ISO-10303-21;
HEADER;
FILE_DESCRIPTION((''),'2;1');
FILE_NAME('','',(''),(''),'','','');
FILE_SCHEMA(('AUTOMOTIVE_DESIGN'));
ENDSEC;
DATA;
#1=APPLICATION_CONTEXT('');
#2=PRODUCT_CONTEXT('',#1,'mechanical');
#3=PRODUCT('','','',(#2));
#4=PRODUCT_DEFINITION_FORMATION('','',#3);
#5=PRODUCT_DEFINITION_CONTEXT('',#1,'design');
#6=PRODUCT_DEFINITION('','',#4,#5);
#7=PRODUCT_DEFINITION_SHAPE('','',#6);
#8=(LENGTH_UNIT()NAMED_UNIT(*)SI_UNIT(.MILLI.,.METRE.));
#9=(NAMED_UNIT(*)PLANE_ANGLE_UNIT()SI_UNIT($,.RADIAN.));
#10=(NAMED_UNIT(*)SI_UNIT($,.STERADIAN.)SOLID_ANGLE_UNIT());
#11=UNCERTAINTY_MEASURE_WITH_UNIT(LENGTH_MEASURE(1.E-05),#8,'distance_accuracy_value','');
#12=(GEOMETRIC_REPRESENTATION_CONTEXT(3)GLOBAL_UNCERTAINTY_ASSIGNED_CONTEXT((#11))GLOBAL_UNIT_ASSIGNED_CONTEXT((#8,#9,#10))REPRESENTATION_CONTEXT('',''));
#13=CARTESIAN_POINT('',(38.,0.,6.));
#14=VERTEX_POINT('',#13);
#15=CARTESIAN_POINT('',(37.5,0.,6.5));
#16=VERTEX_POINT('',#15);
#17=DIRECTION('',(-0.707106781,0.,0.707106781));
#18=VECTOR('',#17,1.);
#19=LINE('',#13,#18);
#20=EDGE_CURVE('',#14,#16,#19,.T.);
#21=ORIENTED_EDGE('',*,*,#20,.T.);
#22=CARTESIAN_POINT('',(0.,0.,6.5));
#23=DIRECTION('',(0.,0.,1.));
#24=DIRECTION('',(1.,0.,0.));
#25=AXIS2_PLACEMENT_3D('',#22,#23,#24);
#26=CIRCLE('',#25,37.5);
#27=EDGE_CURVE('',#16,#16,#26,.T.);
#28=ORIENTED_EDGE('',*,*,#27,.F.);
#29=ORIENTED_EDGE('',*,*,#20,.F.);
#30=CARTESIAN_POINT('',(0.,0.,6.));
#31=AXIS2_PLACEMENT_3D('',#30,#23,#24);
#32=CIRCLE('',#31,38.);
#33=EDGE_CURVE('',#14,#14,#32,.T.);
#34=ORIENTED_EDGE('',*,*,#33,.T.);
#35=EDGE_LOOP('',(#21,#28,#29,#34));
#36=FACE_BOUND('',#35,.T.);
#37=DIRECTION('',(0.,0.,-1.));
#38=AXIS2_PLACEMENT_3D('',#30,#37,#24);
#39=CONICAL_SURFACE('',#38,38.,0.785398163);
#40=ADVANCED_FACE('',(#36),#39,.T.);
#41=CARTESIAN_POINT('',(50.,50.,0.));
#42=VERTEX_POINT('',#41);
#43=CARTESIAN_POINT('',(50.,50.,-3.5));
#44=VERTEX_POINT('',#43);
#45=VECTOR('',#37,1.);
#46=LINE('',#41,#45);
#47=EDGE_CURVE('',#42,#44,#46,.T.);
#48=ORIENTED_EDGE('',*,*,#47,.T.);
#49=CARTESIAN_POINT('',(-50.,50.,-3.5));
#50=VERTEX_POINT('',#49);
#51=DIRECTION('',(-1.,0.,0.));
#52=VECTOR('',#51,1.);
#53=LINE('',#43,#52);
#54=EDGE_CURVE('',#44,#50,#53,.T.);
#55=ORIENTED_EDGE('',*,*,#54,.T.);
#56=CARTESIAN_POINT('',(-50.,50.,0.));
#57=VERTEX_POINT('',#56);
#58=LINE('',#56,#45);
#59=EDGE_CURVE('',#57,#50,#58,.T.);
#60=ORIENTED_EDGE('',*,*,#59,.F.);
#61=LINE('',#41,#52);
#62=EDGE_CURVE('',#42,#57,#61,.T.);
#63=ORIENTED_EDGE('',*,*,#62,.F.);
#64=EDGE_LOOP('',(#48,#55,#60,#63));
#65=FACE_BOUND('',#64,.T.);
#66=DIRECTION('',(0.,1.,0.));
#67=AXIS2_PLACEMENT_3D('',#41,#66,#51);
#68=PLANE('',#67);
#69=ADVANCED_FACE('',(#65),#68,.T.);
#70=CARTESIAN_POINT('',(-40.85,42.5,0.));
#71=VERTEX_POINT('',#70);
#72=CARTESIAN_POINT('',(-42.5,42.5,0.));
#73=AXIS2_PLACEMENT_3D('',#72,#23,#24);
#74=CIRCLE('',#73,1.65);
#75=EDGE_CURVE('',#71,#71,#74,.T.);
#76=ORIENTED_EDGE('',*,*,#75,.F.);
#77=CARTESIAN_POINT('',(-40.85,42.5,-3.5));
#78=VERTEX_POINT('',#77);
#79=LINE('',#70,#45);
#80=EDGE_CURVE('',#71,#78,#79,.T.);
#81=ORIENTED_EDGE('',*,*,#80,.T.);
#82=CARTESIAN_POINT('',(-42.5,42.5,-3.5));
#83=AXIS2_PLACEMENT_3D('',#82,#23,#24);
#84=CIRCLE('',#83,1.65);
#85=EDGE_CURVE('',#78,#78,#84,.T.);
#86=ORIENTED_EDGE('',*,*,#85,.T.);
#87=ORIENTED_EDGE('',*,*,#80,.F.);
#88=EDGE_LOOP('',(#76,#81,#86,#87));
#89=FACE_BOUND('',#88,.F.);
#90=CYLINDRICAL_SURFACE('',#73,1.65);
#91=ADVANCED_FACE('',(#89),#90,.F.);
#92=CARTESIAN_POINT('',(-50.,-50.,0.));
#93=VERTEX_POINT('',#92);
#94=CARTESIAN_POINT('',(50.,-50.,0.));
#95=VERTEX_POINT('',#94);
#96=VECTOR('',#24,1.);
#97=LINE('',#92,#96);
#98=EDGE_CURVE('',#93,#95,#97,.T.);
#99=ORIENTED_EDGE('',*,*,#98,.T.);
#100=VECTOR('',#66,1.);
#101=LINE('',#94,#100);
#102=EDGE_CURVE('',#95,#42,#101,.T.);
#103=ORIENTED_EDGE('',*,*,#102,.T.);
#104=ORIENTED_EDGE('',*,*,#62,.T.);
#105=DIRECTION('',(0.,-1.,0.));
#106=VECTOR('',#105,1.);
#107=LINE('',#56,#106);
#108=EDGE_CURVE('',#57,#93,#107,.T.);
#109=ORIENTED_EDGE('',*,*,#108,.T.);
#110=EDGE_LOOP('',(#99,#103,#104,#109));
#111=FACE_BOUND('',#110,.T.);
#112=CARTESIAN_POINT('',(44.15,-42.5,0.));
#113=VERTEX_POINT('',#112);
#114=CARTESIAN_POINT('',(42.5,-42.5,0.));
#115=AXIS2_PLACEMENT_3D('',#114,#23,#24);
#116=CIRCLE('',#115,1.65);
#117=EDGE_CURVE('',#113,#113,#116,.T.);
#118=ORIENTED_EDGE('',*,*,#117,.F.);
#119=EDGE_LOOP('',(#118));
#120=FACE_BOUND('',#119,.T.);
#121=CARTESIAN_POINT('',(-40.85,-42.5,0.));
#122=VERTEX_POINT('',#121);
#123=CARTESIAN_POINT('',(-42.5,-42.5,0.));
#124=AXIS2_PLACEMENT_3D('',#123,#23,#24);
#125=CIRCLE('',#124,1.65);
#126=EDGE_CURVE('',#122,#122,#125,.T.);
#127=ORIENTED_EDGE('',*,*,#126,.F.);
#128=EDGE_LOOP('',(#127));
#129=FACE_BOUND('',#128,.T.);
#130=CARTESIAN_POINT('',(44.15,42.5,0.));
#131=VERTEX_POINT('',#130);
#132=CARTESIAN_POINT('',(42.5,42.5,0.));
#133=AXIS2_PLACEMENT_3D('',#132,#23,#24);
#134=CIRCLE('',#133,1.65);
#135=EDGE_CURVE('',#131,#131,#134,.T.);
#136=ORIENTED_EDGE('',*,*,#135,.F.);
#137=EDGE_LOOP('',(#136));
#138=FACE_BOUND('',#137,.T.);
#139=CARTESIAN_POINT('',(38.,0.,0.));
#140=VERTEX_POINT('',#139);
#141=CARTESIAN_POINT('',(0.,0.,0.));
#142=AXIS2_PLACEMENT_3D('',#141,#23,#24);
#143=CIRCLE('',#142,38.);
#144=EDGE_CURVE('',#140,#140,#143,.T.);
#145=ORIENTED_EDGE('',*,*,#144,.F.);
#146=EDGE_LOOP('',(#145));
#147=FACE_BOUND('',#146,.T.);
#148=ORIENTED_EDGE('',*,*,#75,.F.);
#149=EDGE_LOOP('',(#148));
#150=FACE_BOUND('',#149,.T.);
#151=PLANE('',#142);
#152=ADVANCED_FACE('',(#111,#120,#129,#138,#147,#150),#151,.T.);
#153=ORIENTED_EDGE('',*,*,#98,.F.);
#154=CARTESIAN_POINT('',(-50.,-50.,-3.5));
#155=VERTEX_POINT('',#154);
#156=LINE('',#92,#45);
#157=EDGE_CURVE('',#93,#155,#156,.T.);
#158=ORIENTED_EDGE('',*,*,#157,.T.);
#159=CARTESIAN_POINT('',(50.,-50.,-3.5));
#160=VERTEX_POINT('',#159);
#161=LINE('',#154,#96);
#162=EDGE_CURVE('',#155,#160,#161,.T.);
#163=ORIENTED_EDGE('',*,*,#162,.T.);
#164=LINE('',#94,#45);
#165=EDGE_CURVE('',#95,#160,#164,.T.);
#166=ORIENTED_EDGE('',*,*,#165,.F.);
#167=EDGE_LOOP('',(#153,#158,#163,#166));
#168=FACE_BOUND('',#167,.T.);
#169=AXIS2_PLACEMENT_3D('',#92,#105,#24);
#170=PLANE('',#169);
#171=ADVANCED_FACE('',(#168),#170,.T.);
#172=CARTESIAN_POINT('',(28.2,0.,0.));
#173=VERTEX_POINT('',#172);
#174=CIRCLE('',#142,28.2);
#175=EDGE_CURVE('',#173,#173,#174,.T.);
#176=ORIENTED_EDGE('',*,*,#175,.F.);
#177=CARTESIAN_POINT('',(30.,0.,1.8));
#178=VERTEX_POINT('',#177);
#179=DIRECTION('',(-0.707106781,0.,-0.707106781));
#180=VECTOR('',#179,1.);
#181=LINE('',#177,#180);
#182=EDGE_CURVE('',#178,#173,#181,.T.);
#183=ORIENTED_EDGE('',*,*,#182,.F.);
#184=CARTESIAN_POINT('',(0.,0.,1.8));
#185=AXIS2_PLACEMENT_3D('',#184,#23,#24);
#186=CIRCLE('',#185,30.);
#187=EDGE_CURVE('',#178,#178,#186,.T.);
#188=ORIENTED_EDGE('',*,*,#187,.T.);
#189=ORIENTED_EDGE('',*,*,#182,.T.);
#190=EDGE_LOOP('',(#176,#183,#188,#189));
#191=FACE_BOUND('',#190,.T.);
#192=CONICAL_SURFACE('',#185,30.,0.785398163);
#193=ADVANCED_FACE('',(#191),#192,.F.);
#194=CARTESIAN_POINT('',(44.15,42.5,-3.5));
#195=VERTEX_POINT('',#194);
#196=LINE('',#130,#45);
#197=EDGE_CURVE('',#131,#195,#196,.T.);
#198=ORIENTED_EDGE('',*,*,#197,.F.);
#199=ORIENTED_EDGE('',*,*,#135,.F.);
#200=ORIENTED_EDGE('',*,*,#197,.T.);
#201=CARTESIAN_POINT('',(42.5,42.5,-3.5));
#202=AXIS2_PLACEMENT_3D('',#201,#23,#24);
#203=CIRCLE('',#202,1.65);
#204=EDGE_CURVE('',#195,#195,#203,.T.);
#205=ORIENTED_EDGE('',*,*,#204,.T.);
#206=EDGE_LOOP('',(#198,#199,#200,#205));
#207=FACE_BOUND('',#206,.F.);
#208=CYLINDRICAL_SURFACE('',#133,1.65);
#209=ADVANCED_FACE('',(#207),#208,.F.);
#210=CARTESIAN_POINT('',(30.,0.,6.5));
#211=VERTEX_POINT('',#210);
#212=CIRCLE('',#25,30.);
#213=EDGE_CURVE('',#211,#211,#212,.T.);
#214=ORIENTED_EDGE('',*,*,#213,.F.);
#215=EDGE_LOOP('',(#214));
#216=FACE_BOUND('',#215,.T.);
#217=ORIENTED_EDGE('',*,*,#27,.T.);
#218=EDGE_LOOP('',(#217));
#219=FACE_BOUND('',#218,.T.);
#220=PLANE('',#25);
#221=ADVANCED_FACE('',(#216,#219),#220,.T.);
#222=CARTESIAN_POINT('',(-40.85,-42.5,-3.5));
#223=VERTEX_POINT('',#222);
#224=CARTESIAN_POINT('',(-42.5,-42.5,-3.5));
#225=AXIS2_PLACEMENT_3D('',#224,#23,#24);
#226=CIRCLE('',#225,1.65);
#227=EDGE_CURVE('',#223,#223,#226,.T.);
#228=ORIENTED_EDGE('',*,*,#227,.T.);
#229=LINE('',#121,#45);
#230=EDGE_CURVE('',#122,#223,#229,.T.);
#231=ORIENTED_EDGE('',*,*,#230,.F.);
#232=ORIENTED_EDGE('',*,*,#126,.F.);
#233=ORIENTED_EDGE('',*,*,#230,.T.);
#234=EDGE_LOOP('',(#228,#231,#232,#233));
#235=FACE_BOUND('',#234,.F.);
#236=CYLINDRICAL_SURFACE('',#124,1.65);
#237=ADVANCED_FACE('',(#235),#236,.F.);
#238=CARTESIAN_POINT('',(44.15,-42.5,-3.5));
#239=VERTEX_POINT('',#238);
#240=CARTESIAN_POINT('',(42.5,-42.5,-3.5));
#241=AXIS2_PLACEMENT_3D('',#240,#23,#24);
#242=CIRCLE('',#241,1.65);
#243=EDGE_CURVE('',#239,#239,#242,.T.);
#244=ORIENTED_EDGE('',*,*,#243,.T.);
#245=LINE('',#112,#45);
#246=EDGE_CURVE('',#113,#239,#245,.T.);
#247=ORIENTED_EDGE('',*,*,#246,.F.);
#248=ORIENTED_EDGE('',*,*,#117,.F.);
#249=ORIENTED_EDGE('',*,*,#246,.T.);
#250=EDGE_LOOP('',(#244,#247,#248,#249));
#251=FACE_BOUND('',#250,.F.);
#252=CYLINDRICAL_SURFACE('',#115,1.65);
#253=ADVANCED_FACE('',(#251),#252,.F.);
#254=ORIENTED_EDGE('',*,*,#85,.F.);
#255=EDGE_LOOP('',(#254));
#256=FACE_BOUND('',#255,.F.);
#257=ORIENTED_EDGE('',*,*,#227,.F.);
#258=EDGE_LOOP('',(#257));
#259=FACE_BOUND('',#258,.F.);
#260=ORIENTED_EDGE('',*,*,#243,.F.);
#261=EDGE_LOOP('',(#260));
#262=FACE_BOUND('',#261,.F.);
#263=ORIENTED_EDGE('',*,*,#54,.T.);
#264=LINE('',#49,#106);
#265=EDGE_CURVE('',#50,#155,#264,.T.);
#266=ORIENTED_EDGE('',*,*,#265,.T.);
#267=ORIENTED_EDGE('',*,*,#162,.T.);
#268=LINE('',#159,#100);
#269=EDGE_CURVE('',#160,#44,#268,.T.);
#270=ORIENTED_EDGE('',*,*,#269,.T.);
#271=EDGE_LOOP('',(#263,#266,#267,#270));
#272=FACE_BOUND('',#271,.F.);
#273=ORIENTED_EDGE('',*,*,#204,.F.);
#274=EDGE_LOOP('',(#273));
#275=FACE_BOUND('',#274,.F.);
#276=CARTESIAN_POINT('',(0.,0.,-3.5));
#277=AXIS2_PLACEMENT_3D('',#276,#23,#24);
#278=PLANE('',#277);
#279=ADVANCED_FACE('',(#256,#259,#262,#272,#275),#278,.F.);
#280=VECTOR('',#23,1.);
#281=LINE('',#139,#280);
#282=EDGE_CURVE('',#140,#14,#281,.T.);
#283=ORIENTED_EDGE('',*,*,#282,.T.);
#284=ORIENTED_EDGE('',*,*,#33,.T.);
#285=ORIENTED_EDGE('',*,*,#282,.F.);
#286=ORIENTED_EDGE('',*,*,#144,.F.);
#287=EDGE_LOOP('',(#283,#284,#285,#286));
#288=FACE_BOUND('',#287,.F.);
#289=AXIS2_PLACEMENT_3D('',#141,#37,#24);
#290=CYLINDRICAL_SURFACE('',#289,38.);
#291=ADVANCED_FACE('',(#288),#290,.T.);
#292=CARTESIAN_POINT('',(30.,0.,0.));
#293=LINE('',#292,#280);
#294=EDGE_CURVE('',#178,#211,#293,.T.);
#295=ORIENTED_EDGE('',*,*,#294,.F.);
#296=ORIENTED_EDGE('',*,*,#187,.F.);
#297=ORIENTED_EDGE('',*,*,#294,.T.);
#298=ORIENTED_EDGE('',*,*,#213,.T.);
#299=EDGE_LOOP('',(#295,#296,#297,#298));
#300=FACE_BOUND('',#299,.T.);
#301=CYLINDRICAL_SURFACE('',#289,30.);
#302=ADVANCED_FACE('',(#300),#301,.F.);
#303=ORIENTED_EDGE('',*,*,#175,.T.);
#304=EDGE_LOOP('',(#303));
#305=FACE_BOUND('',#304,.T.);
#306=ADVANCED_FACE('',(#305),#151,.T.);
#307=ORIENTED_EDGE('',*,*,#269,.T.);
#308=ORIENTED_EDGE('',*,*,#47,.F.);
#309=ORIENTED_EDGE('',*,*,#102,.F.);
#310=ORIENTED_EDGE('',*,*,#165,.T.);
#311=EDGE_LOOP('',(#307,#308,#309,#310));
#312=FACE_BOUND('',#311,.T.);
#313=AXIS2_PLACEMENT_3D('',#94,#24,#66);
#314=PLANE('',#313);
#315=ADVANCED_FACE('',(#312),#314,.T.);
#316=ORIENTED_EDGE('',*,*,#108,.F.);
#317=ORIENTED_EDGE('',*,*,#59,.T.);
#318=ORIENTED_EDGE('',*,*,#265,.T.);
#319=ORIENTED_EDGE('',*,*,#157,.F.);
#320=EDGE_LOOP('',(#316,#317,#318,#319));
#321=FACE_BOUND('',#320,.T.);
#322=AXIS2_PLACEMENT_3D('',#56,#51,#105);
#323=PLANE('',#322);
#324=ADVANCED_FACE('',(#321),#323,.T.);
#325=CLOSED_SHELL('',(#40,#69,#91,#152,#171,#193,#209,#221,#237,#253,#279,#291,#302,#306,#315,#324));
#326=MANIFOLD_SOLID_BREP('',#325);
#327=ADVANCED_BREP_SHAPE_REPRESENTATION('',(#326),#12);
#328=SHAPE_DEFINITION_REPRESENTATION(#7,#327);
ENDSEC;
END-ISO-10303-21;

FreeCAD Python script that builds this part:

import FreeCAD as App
import Part
import Sketcher
Q = App.Units.Quantity


def edges_at(feature, points):
    """Names of the edges that pass closest to the given points."""
    edges = feature.Shape.Edges
    near = lambda p: min(range(len(edges)), key=lambda i: edges[i].distToShape(Part.Vertex(*p))[0])
    return sorted({f"Edge{near(p) + 1}" for p in points})


def add_polygon(sketch, points):
    """Adds a closed chain of lines whose ends are joined by coincident constraints."""
    first, n = sketch.GeometryCount, len(points)
    for a, b in zip(points, points[1:] + points[:1]):
        sketch.addGeometry(Part.LineSegment(App.Vector(*a, 0), App.Vector(*b, 0)), False)
    for i in range(n):
        sketch.addConstraint(Sketcher.Constraint("Coincident", first + i, 2, first + (i + 1) % n, 1))

doc = App.newDocument("Part")
body = doc.addObject("PartDesign::Body", "Body")

# Sketch on XY plane
sketch1 = doc.addObject("Sketcher::SketchObject", "Sketch")
body.addObject(sketch1)
sketch1.AttachmentSupport = (doc.XY_Plane, [""])
sketch1.MapMode = "FlatFace"
add_polygon(sketch1, [(50, -50), (50, 50), (-50, 50), (-50, -50)])  # lines 0-3
sketch1.addGeometry(Part.Circle(App.Vector(-42.5, -42.5, 0), App.Vector(0, 0, 1), 1.6), False)  # 4
sketch1.addGeometry(Part.Circle(App.Vector(42.5, -42.5, 0), App.Vector(0, 0, 1), 1.6), False)  # 5
sketch1.addGeometry(Part.Circle(App.Vector(-42.5, 42.5, 0), App.Vector(0, 0, 1), 1.6), False)  # 6
sketch1.addGeometry(Part.Circle(App.Vector(42.5, 42.5, 0), App.Vector(0, 0, 1), 1.6), False)  # 7
sketch1.addConstraint([
    Sketcher.Constraint("Vertical", 0),
    Sketcher.Constraint("Horizontal", 1),
    Sketcher.Constraint("Vertical", 2),
    Sketcher.Constraint("Horizontal", 3),
    Sketcher.Constraint("Equal", 4, 5),
    Sketcher.Constraint("Equal", 5, 6),
    Sketcher.Constraint("Equal", 6, 7),
    Sketcher.Constraint("Symmetric", 5, 3, 6, 3, -1, 1),
    Sketcher.Constraint("Symmetric", 4, 3, 7, 3, -1, 1),
    Sketcher.Constraint("Symmetric", 0, 2, 2, 2, -1, 1),
    Sketcher.Constraint("Symmetric", 4, 3, 5, 3, -2),
    Sketcher.Constraint("Equal", 3, 0),
    Sketcher.Constraint("Diameter", 4, Q("3.3 mm")),
    Sketcher.Constraint("DistanceX", 1, 2, 1, 1, Q("100 mm")),
    Sketcher.Constraint("DistanceX", 4, 3, 5, 3, Q("85 mm")),
    Sketcher.Constraint("DistanceY", 4, 3, 6, 3, Q("85 mm")),
])
pad1 = doc.addObject("PartDesign::Pad", "Pad")
body.addObject(pad1)
pad1.Profile = sketch1
pad1.Length = 3.5
pad1.Reversed = True

# Sketch on XY plane
sketch2 = doc.addObject("Sketcher::SketchObject", "Sketch001")
body.addObject(sketch2)
sketch2.AttachmentSupport = (doc.XY_Plane, [""])
sketch2.MapMode = "FlatFace"
sketch2.addGeometry([
    Part.Circle(App.Vector(0, 0, 0), App.Vector(0, 0, 1), 38),
    Part.Circle(App.Vector(0, 0, 0), App.Vector(0, 0, 1), 30),
], False)
sketch2.addConstraint([
    Sketcher.Constraint("Coincident", 0, 3, -1, 1),
    Sketcher.Constraint("Coincident", 1, 3, -1, 1),
    Sketcher.Constraint("Diameter", 0, Q("76 mm")),
    Sketcher.Constraint("Diameter", 1, Q("60 mm")),
])
pad2 = doc.addObject("PartDesign::Pad", "Pad001")
body.addObject(pad2)
pad2.Profile = sketch2
pad2.Length = 6.5
doc.recompute()

chamfer = doc.addObject("PartDesign::Chamfer", "Chamfer")
body.addObject(chamfer)
chamfer.Base = (pad2, edges_at(pad2, [(-38, 0, 6.5)]))
chamfer.Size = 0.5
doc.recompute()

chamfer2 = doc.addObject("PartDesign::Chamfer", "Chamfer001")
body.addObject(chamfer2)
chamfer2.Base = (chamfer, edges_at(chamfer, [(-30, 0, 0)]))
chamfer2.Size = 1.8

doc.recompute()
